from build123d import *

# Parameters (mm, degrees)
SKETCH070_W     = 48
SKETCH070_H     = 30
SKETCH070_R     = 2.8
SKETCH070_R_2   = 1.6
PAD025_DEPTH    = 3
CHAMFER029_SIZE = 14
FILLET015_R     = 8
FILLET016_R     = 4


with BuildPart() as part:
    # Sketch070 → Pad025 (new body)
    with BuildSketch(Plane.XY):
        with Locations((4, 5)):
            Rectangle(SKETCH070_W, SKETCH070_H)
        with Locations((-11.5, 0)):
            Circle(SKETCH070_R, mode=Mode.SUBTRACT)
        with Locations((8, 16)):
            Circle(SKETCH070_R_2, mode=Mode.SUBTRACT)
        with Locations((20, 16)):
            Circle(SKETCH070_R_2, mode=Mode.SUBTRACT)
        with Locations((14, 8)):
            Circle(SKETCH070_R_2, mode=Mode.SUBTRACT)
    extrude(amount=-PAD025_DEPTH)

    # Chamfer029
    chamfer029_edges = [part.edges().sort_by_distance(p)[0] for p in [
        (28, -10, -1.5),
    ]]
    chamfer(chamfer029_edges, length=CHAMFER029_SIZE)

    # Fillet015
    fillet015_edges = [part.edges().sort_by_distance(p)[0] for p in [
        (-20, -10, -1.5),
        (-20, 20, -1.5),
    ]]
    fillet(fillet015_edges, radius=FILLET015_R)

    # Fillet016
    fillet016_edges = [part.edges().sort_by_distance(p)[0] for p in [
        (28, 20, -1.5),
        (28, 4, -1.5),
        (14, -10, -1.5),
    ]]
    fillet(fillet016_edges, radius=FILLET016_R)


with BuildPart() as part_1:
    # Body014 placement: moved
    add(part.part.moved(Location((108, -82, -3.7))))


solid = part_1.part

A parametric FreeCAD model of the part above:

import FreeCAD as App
import Part
import Sketcher
from FreeCAD import Vector


def edges_at(feature, points):
    """Names of the edges that pass closest to the given points."""
    edges = feature.Shape.Edges
    near = lambda p: min(range(len(edges)), key=lambda i: edges[i].distToShape(Part.Vertex(*p))[0])
    return sorted({f"Edge{near(p) + 1}" for p in points})


def add_polygon(sketch, points):
    """Adds a closed chain of lines whose ends are joined by coincident constraints."""
    first, n = sketch.GeometryCount, len(points)
    for a, b in zip(points, points[1:] + points[:1]):
        sketch.addGeometry(Part.LineSegment(App.Vector(*a, 0), App.Vector(*b, 0)), False)
    for i in range(n):
        sketch.addConstraint(Sketcher.Constraint("Coincident", first + i, 2, first + (i + 1) % n, 1))

doc = App.newDocument("Part")
body = doc.addObject("PartDesign::Body", "Body")

sketch1 = body.newObject("Sketcher::SketchObject", "Sketch")
sketch1.AttachmentSupport = (doc.getObject("XY_Plane"), [""])
sketch1.MapMode = "FlatFace"
add_polygon(sketch1, [(-20, 20), (-20, -10), (28, -10), (28, 20)])
sketch1.addGeometry(Part.Circle(Vector(-11.5, 0, 0), Vector(0, 0, 1), 2.8), False)
sketch1.addGeometry(Part.Circle(Vector(14, 8, 0), Vector(0, 0, 1), 1.6), False)
sketch1.addGeometry(Part.Circle(Vector(8, 16, 0), Vector(0, 0, 1), 1.6), False)
sketch1.addGeometry(Part.Circle(Vector(20, 16, 0), Vector(0, 0, 1), 1.6), False)
sketch1.addConstraint([
    Sketcher.Constraint("Vertical", 0),
    Sketcher.Constraint("Horizontal", 1),
    Sketcher.Constraint("Vertical", 2),
    Sketcher.Constraint("Horizontal", 3),
    Sketcher.Constraint("Equal", 5, 6),
    Sketcher.Constraint("Equal", 6, 7),
    Sketcher.Constraint("PointOnObject", 4, 3, -1),
    Sketcher.Constraint("Horizontal", 6, 3, 7, 3),
    Sketcher.Constraint("Diameter", 4, 5.6),
    Sketcher.Constraint("Diameter", 5, 3.2),
    Sketcher.Constraint("DistanceX", 1, 1, 1, 2, 48.0),
    Sketcher.Constraint("DistanceY", 0, 2, 0, 1, 30.0),
    Sketcher.Constraint("DistanceX", -1, 1, 5, 3, 14.0),
    Sketcher.Constraint("DistanceY", -1, 1, 5, 3, 8.0),
    Sketcher.Constraint("DistanceX", -1, 1, 6, 3, 8.0),
    Sketcher.Constraint("DistanceY", -1, 1, 6, 3, 16.0),
    Sketcher.Constraint("DistanceX", -1, 1, 7, 3, 20.0),
    Sketcher.Constraint("DistanceX", 0, 2, -1, 1, 20.0),
    Sketcher.Constraint("DistanceY", 0, 2, -1, 1, 10.0),
    Sketcher.Constraint("DistanceX", 4, 3, -1, 1, 11.5),
])
pad1 = body.newObject("PartDesign::Pad", "Pad")
pad1.Profile = sketch1
pad1.Length = 3
pad1.Reversed = True
doc.recompute()

chamfer = body.newObject("PartDesign::Chamfer", "Chamfer")
chamfer.Base = (pad1, edges_at(pad1, [(28, -10, -1.5)]))
chamfer.Size = 14
doc.recompute()

fillet = body.newObject("PartDesign::Fillet", "Fillet")
fillet.Base = (chamfer, edges_at(chamfer, [(-20, -10, -1.5), (-20, 20, -1.5)]))
fillet.Radius = 8
doc.recompute()

fillet2 = body.newObject("PartDesign::Fillet", "Fillet001")
fillet2.Base = (fillet, edges_at(fillet, [(28, 20, -1.5), (28, 4, -1.5), (14, -10, -1.5)]))
fillet2.Radius = 4
body2 = doc.addObject("PartDesign::Body", "Body001")
doc.recompute()

body.Placement = App.Placement(Vector(108, -82, -3.7), App.Rotation(Vector(0, 0, 1), 0))
boolean = body2.newObject("PartDesign::Boolean", "Boolean")
boolean.Type = "Fuse"
boolean.addObjects([body])

doc.recompute()
